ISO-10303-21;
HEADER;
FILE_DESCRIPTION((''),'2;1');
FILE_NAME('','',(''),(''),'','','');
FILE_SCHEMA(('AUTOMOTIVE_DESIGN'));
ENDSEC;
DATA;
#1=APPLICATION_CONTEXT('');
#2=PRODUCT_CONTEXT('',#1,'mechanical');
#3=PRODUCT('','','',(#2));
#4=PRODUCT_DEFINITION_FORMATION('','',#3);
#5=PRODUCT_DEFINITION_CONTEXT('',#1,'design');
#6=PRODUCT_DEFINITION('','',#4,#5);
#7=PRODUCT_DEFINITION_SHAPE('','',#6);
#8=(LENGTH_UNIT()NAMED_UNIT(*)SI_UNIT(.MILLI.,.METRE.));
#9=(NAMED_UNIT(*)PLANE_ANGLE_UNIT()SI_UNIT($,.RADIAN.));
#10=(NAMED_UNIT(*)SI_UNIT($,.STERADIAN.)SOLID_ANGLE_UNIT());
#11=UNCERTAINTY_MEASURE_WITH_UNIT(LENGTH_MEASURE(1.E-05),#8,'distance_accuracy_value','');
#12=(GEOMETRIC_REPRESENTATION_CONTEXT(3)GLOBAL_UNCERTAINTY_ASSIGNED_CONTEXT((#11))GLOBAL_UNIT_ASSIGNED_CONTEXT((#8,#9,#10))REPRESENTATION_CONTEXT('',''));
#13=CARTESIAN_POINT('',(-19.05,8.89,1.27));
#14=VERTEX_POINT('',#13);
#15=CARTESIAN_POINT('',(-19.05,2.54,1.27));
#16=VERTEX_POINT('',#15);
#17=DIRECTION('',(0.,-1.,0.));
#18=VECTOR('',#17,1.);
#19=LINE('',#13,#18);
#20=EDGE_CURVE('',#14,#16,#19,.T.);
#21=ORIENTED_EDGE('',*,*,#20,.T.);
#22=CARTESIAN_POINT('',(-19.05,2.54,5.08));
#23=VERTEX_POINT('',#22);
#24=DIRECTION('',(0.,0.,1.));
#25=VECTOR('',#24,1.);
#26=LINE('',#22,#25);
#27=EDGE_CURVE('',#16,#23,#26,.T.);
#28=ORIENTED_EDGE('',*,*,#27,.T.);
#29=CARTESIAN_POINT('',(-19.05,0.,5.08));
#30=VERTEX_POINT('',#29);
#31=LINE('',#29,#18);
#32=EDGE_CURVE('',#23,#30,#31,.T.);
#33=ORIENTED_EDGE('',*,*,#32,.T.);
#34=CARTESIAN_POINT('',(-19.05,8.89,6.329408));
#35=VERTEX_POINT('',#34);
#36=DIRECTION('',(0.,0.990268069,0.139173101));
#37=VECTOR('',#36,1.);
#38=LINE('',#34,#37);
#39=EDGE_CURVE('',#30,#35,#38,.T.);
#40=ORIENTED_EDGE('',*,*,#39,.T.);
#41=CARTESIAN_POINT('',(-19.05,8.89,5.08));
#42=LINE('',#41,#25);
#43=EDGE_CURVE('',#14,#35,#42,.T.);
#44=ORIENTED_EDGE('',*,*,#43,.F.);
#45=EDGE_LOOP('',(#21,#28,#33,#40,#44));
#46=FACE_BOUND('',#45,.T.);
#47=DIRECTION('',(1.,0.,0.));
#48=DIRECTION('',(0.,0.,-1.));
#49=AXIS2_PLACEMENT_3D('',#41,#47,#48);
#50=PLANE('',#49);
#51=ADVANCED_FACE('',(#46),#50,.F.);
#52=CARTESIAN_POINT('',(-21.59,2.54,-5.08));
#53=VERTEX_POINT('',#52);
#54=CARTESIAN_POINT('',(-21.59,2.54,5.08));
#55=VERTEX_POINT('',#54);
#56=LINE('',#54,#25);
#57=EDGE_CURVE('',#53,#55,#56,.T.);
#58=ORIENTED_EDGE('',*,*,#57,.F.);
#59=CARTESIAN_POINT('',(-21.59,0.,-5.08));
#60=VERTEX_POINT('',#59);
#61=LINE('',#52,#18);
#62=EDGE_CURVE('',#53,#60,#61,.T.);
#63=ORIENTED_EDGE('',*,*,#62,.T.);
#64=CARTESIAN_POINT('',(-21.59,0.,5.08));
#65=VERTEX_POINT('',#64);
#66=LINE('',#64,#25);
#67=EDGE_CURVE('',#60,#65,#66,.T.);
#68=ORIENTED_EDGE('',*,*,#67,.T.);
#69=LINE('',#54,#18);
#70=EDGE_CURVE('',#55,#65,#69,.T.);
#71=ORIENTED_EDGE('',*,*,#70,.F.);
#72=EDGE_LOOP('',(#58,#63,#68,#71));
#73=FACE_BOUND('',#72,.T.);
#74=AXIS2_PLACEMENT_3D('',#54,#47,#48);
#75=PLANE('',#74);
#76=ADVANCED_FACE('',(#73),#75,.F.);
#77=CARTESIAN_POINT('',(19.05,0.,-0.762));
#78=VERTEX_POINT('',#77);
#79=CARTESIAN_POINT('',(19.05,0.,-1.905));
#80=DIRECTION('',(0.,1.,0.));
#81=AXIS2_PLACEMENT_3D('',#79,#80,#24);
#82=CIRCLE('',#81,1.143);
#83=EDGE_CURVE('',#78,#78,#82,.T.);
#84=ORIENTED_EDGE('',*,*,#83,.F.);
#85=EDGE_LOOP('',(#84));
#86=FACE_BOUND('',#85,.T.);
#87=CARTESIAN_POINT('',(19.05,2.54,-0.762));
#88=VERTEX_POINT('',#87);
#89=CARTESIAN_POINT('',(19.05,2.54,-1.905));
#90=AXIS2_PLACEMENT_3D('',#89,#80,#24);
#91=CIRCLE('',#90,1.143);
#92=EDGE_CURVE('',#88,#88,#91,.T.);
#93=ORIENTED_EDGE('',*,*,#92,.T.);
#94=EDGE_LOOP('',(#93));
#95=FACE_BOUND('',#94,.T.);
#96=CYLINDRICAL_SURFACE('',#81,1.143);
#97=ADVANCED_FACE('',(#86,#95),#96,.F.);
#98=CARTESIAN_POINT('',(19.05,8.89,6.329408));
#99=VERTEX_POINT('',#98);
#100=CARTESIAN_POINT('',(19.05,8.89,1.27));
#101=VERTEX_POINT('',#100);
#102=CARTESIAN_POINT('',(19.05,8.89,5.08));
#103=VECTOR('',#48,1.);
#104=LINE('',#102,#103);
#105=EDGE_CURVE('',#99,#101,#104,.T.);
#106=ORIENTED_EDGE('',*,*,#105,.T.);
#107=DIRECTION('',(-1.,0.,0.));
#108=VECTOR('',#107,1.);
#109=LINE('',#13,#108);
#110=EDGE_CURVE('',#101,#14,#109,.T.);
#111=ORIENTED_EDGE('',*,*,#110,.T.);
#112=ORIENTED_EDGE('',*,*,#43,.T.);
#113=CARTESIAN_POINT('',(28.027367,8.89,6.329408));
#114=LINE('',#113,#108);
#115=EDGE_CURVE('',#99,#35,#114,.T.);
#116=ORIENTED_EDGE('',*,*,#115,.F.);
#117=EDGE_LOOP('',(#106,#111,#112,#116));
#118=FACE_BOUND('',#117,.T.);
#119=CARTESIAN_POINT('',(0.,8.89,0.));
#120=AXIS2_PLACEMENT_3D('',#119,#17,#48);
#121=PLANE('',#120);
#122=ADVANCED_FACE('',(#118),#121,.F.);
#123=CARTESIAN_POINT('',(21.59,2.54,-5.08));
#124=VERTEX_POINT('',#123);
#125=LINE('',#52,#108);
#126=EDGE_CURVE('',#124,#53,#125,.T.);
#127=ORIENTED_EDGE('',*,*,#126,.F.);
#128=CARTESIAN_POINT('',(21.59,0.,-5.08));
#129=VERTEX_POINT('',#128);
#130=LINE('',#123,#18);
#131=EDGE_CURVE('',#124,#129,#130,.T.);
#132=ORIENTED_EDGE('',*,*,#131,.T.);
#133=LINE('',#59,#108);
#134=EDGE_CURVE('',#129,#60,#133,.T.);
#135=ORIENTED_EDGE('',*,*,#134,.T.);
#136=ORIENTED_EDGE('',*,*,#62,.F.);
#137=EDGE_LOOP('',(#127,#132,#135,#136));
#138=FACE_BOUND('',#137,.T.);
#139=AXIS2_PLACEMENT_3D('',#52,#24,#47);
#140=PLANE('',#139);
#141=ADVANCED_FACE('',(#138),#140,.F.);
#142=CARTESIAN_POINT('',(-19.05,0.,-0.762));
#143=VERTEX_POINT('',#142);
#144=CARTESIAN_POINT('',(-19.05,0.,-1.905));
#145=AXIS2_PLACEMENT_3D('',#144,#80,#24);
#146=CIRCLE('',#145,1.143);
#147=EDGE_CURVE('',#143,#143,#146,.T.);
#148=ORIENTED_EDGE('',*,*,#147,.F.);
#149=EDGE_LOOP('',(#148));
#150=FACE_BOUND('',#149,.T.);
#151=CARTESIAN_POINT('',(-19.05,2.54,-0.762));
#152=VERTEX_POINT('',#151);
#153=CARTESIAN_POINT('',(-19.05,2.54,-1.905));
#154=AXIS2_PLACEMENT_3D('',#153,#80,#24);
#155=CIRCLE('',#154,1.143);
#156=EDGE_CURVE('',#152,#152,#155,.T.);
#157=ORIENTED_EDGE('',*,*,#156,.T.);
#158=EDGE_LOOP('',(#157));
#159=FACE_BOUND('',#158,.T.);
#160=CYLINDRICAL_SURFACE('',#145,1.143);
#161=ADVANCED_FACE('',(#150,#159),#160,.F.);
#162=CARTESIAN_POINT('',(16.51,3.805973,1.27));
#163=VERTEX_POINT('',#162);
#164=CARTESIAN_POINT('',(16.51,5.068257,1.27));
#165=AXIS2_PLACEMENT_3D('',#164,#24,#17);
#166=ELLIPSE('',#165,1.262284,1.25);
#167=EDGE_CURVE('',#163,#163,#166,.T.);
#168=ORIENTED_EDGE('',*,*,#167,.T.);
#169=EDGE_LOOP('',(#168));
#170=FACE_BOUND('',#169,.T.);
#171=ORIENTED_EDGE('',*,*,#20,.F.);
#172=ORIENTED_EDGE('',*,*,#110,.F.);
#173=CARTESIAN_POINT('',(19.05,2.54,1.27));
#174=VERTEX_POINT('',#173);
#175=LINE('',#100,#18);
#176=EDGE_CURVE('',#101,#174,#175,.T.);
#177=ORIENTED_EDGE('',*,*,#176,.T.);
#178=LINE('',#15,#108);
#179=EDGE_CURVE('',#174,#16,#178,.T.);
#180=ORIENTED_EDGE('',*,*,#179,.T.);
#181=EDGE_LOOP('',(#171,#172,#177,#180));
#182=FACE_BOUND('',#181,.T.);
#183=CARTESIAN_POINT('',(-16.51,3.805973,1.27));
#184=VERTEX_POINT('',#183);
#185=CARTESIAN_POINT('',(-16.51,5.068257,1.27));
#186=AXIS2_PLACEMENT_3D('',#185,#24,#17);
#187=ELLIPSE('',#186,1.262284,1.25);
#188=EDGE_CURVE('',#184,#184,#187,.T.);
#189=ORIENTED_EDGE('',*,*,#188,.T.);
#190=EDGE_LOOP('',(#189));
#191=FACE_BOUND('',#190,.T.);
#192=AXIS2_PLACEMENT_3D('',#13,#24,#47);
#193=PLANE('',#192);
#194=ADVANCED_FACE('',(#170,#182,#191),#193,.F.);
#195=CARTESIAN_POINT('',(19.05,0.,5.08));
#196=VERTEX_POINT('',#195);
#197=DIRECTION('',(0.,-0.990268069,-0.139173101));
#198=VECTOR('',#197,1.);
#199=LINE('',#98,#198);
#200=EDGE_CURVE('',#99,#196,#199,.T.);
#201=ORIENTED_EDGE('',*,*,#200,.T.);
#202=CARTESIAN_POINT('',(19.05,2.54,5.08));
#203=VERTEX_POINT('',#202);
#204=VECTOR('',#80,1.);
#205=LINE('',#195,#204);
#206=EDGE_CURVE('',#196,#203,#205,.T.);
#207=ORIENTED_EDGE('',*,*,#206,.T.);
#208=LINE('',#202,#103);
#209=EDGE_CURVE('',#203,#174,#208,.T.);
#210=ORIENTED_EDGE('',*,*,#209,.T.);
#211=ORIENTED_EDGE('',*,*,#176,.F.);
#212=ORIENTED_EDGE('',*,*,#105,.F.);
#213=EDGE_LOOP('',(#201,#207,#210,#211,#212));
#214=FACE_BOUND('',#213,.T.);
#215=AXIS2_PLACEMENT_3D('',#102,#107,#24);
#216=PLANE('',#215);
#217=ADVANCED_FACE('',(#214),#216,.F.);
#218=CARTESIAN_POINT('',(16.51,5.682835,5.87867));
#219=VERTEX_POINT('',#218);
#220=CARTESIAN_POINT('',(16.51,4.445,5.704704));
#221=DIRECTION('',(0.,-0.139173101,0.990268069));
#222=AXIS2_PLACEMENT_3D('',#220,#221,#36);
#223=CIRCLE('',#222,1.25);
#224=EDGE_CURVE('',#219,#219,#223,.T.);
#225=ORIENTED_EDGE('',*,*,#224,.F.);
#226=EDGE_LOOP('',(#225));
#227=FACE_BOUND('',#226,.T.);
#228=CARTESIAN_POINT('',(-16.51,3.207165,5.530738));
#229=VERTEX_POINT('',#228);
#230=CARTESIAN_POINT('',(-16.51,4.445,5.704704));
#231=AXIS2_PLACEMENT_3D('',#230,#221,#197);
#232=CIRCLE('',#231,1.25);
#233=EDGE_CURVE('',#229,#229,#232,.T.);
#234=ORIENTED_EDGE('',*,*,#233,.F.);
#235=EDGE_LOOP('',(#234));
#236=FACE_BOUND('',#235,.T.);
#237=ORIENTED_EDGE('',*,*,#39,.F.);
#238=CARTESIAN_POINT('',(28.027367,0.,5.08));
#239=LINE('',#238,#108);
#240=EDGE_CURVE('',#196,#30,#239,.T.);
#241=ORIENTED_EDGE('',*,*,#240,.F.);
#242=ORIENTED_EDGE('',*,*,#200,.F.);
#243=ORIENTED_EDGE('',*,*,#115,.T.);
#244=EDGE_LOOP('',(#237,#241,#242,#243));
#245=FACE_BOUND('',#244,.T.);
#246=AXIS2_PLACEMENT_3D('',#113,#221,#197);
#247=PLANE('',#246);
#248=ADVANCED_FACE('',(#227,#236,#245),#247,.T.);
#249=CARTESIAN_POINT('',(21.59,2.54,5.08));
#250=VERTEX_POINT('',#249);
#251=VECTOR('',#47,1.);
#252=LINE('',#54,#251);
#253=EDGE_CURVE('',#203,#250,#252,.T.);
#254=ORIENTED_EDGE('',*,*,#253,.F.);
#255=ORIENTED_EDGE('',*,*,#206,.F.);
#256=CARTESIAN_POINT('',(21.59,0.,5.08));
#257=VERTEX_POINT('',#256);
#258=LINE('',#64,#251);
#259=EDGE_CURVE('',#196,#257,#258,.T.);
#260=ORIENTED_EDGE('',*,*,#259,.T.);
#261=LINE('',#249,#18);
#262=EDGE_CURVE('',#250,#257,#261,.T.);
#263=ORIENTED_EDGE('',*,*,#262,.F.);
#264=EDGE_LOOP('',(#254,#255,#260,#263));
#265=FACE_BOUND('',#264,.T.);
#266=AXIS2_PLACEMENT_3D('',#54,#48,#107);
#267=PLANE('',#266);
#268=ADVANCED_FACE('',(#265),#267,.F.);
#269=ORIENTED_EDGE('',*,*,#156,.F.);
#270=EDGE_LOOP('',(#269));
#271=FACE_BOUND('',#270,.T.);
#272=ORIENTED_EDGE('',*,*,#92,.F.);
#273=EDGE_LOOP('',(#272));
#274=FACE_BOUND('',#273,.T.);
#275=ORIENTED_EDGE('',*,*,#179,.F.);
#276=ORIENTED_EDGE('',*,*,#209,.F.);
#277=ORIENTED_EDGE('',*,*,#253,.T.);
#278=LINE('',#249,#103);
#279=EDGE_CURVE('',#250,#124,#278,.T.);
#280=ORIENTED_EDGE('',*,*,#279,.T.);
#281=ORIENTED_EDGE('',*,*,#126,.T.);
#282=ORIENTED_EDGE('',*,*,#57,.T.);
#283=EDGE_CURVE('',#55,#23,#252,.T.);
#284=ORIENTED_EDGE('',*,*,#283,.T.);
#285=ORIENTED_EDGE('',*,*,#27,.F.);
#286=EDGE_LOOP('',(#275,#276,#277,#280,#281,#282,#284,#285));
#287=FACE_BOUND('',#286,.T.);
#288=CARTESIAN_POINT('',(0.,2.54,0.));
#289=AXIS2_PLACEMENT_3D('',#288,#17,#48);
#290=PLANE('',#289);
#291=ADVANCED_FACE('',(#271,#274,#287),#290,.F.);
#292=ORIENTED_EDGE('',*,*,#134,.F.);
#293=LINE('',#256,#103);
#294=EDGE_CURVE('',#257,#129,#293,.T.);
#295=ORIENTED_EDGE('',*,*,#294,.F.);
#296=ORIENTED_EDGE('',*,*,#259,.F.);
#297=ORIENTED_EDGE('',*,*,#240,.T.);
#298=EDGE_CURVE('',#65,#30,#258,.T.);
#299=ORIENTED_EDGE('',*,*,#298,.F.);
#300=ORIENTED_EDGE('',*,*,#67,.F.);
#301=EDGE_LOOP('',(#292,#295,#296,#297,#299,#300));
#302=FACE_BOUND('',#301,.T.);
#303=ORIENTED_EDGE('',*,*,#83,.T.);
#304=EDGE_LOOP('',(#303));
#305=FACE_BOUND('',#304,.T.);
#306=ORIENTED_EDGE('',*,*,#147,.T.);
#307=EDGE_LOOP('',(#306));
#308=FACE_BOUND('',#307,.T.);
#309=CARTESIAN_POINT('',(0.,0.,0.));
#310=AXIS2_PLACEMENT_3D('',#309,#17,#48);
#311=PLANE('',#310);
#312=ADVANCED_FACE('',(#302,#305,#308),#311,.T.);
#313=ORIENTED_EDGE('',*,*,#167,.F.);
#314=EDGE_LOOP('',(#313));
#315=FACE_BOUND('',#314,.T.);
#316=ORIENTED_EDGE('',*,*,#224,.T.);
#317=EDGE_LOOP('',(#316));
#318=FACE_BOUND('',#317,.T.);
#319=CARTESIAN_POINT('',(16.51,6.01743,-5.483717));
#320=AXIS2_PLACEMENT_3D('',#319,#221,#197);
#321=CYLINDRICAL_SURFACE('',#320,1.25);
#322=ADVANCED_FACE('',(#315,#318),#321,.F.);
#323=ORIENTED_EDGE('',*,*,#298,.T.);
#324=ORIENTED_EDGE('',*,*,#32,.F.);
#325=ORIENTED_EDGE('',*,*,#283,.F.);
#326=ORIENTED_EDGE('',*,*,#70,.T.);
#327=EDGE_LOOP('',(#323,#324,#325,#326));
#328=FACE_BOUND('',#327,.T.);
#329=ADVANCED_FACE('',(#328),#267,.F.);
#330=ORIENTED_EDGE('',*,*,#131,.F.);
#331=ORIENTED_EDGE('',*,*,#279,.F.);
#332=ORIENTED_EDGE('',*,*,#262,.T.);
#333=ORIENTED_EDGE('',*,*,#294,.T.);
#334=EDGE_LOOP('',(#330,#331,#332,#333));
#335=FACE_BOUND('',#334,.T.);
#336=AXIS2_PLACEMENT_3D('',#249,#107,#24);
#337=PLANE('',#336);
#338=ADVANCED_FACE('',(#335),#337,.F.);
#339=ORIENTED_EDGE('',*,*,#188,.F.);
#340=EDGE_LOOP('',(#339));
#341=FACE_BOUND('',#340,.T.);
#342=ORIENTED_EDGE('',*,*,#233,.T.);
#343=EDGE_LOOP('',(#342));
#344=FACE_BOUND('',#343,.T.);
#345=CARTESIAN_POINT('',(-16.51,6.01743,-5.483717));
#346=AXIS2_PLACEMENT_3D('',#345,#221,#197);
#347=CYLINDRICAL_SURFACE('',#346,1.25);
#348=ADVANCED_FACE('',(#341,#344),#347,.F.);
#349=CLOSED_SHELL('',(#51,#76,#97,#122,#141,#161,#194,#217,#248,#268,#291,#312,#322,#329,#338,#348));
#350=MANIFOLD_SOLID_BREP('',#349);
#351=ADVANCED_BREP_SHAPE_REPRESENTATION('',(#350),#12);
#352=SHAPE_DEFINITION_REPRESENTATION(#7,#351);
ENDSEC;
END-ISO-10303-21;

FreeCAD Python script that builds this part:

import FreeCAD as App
import Part
import Sketcher
Q = App.Units.Quantity

doc = App.newDocument("Part")
body = doc.addObject("PartDesign::Body", "Body")

# Sketch on XZ plane
sketch1 = body.newObject("Sketcher::SketchObject", "Sketch")
sketch1.AttachmentSupport = (doc.getObject("XZ_Plane"), [""])
sketch1.MapMode = "FlatFace"
sketch1.addGeometry(Part.LineSegment(App.Vector(-22, -5, 0), App.Vector(-22, 5, 0)), False)
sketch1.addGeometry(Part.LineSegment(App.Vector(-22, 5, 0), App.Vector(22, 5, 0)), False)
sketch1.addGeometry(Part.LineSegment(App.Vector(22, 5, 0), App.Vector(22, -5, 0)), False)
sketch1.addGeometry(Part.LineSegment(App.Vector(22, -5, 0), App.Vector(-22, -5, 0)), False)
sketch1.addConstraint(Sketcher.Constraint("Coincident", 0, 2, 1, 1))
sketch1.addConstraint(Sketcher.Constraint("Coincident", 1, 2, 2, 1))
sketch1.addConstraint(Sketcher.Constraint("Coincident", 2, 2, 3, 1))
sketch1.addConstraint(Sketcher.Constraint("Coincident", 3, 2, 0, 1))
sketch1.addConstraint(Sketcher.Constraint("Vertical", 0))
sketch1.addConstraint(Sketcher.Constraint("Horizontal", 1))
sketch1.addConstraint(Sketcher.Constraint("Vertical", 2))
sketch1.addConstraint(Sketcher.Constraint("Horizontal", 3))
sketch1.addConstraint(Sketcher.Constraint("Symmetric", 0, 2, 2, 2, -1, 1))
sketch1.addConstraint(Sketcher.Constraint("DistanceX", 1, 1, 1, 2, Q("1.7 in")))
sketch1.addConstraint(Sketcher.Constraint("DistanceY", 0, 1, 0, 2, Q("0.4 in")))
pad1 = body.newObject("PartDesign::Pad", "Pad")
pad1.Profile = sketch1
pad1.Length = Q("0.1 in")
pad1.Reversed = True

# Sketch on XZ plane
sketch2 = body.newObject("Sketcher::SketchObject", "Sketch001")
sketch2.AttachmentSupport = (doc.getObject("XZ_Plane"), [""])
sketch2.MapMode = "FlatFace"
sketch2.AttachmentOffset = App.Placement(App.Vector(0, 0, -0.1 * 25.4), App.Rotation())
sketch2.addGeometry(Part.LineSegment(App.Vector(-19.1, 1.3, 0), App.Vector(-19.1, 5.1, 0)), False)
sketch2.addGeometry(Part.LineSegment(App.Vector(-19.1, 5.1, 0), App.Vector(19.1, 5.1, 0)), False)
sketch2.addGeometry(Part.LineSegment(App.Vector(19.1, 5.1, 0), App.Vector(19.1, 1.3, 0)), False)
sketch2.addGeometry(Part.LineSegment(App.Vector(19.1, 1.3, 0), App.Vector(-19.1, 1.3, 0)), False)
sketch2.addConstraint(Sketcher.Constraint("Coincident", 0, 2, 1, 1))
sketch2.addConstraint(Sketcher.Constraint("Coincident", 1, 2, 2, 1))
sketch2.addConstraint(Sketcher.Constraint("Coincident", 2, 2, 3, 1))
sketch2.addConstraint(Sketcher.Constraint("Coincident", 3, 2, 0, 1))
sketch2.addConstraint(Sketcher.Constraint("Vertical", 0))
sketch2.addConstraint(Sketcher.Constraint("Horizontal", 1))
sketch2.addConstraint(Sketcher.Constraint("Vertical", 2))
sketch2.addConstraint(Sketcher.Constraint("Horizontal", 3))
sketch2.addConstraint(Sketcher.Constraint("DistanceX", 1, 1, 1, 2, Q("1.5 in")))
sketch2.addConstraint(Sketcher.Constraint("DistanceY", 0, 1, 0, 2, Q("0.15 in")))
sketch2.addConstraint(Sketcher.Constraint("DistanceY", -1, 1, 0, 2, Q("0.2 in")))
sketch2.addConstraint(Sketcher.Constraint("DistanceX", 0, 2, -1, 1, Q("0.75 in")))
pad2 = body.newObject("PartDesign::Pad", "Pad001")
pad2.Profile = sketch2
pad2.Length = Q("0.25 in")
pad2.Reversed = True

# Sketch on XZ plane
sketch3 = body.newObject("Sketcher::SketchObject", "Sketch002")
sketch3.AttachmentSupport = (doc.getObject("XZ_Plane"), [""])
sketch3.MapMode = "FlatFace"
sketch3.AttachmentOffset = App.Placement(App.Vector(0, 0, -0.1 * 25.4), App.Rotation())
sketch3.addGeometry(Part.Circle(App.Vector(19.1, -1.9, 0), App.Vector(0, 0, 1), 1.1), False)
sketch3.addGeometry(Part.Circle(App.Vector(-19.1, -1.9, 0), App.Vector(0, 0, 1), 1.1), False)
sketch3.addConstraint(Sketcher.Constraint("Equal", 0, 1))
sketch3.addConstraint(Sketcher.Constraint("Symmetric", 0, 3, 1, 3, -2))
sketch3.addConstraint(Sketcher.Constraint("Diameter", 0, Q("0.09 in")))
sketch3.addConstraint(Sketcher.Constraint("DistanceX", 1, 3, 0, 3, Q("1.5 in")))
sketch3.addConstraint(Sketcher.Constraint("DistanceY", 0, 3, -1, 1, Q("0.075 in")))
pocket1 = body.newObject("PartDesign::Pocket", "Pocket")
pocket1.Profile = sketch3
pocket1.Type = "ThroughAll"
pocket1.Reversed = True

# Sketch on YZ plane
sketch4 = body.newObject("Sketcher::SketchObject", "Sketch003")
sketch4.AttachmentSupport = (doc.getObject("YZ_Plane"), [""])
sketch4.MapMode = "FlatFace"
sketch4.AttachmentOffset = App.Placement(App.Vector(0, 0, -0.75 * 25.4), App.Rotation())
sketch4.addGeometry(Part.LineSegment(App.Vector(8.9, 6.3, 0), App.Vector(8.9, 5.1, 0)), False)
sketch4.addGeometry(Part.LineSegment(App.Vector(8.9, 5.1, 0), App.Vector(0, 5.1, 0)), False)
sketch4.addGeometry(Part.LineSegment(App.Vector(0, 5.1, 0), App.Vector(8.9, 6.3, 0)), False)
sketch4.addConstraint(Sketcher.Constraint("Coincident", 0, 2, 1, 1))
sketch4.addConstraint(Sketcher.Constraint("Coincident", 1, 2, 2, 1))
sketch4.addConstraint(Sketcher.Constraint("Coincident", 2, 2, 0, 1))
sketch4.addConstraint(Sketcher.Constraint("Vertical", 0))
sketch4.addConstraint(Sketcher.Constraint("Horizontal", 1))
sketch4.addConstraint(Sketcher.Constraint("PointOnObject", 1, 2, -2))
sketch4.addConstraint(Sketcher.Constraint("Angle", 2, Q("8 deg")))
sketch4.addConstraint(Sketcher.Constraint("DistanceX", 1, 2, 1, 1, Q("0.35 in")))
sketch4.addConstraint(Sketcher.Constraint("DistanceY", -1, 1, 0, 2, Q("0.2 in")))
pad3 = body.newObject("PartDesign::Pad", "Pad002")
pad3.Profile = sketch4
pad3.Length = Q("1.5 in")

# Sketch on an angled plane
sketch5 = body.newObject("Sketcher::SketchObject", "Sketch004")
sketch5.Placement = App.Placement(App.Vector(0, -0.700119, 4.981605), App.Rotation(App.Vector(1, 0, 0), App.Vector(0, 0.990268069, 0.139173101), App.Vector(0, -0.139173101, 0.990268069), "ZXY"))
sketch5.addGeometry(Part.Circle(App.Vector(-16.5, 5.2, 0), App.Vector(0, 0, 1), 1.2), False)
sketch5.addGeometry(Part.Circle(App.Vector(16.5, 5.2, 0), App.Vector(0, 0, 1), 1.2), False)
sketch5.addConstraint(Sketcher.Constraint("Equal", 0, 1))
sketch5.addConstraint(Sketcher.Constraint("Symmetric", 0, 3, 1, 3, -2))
sketch5.addConstraint(Sketcher.Constraint("DistanceX", 0, 3, 1, 3, Q("1.3 in")))
sketch5.addConstraint(Sketcher.Constraint("Diameter", 0, Q("2.5 mm")))
sketch5.addConstraint(Sketcher.Constraint("DistanceY", -1, 1, 0, 3, Q("5.195683 mm")))
pocket2 = body.newObject("PartDesign::Pocket", "Pocket001")
pocket2.Profile = sketch5
pocket2.Type = "ThroughAll"

doc.recompute()
